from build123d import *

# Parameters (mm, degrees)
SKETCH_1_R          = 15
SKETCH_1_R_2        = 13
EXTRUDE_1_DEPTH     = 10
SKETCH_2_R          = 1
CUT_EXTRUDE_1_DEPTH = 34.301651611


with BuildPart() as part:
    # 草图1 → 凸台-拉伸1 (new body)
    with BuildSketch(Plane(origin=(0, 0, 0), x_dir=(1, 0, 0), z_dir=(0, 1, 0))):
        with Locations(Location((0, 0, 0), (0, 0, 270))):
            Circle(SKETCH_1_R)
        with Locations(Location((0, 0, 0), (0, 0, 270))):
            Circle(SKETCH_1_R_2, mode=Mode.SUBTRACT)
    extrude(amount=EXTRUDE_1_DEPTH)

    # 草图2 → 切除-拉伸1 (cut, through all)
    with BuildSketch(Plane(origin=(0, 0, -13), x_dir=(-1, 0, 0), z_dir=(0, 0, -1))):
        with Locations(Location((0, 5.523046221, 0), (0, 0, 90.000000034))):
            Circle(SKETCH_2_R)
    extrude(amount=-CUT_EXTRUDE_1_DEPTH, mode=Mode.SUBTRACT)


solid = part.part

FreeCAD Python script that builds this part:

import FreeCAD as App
import Part
import Sketcher

doc = App.newDocument("Part")
body = doc.addObject("PartDesign::Body", "Body")

# Sketch on XZ plane
sketch1 = body.newObject("Sketcher::SketchObject", "Sketch")
sketch1.AttachmentSupport = (doc.getObject("XZ_Plane"), [""])
sketch1.MapMode = "FlatFace"
sketch1.addGeometry([
    Part.Circle(App.Vector(0, 0, 0), App.Vector(0, 0, 1), 15),
    Part.Circle(App.Vector(0, 0, 0), App.Vector(0, 0, 1), 13),
], False)
sketch1.addConstraint([
    Sketcher.Constraint("Coincident", 0, 3, -1, 1),
    Sketcher.Constraint("Coincident", 1, 3, -1, 1),
    Sketcher.Constraint("Diameter", 0, 30.0),
    Sketcher.Constraint("Diameter", 1, 26.0),
])
pad1 = body.newObject("PartDesign::Pad", "Pad")
pad1.Profile = sketch1
pad1.Length = 10
pad1.Reversed = True

# Sketch on XY plane
sketch2 = body.newObject("Sketcher::SketchObject", "Sketch001")
sketch2.AttachmentSupport = (doc.getObject("XY_Plane"), [""])
sketch2.MapMode = "FlatFace"
sketch2.AttachmentOffset = App.Placement(App.Vector(0, 0, -13), App.Rotation())
sketch2.addGeometry(Part.Circle(App.Vector(0, 5.5, 0), App.Vector(0, 0, 1), 1), False)
sketch2.addConstraint([
    Sketcher.Constraint("PointOnObject", 0, 3, -2),
    Sketcher.Constraint("Diameter", 0, 2.0),
    Sketcher.Constraint("DistanceY", -1, 1, 0, 3, 5.523046),
])
pocket1 = body.newObject("PartDesign::Pocket", "Pocket")
pocket1.Profile = sketch2
pocket1.Type = "ThroughAll"
pocket1.Reversed = True

doc.recompute()
